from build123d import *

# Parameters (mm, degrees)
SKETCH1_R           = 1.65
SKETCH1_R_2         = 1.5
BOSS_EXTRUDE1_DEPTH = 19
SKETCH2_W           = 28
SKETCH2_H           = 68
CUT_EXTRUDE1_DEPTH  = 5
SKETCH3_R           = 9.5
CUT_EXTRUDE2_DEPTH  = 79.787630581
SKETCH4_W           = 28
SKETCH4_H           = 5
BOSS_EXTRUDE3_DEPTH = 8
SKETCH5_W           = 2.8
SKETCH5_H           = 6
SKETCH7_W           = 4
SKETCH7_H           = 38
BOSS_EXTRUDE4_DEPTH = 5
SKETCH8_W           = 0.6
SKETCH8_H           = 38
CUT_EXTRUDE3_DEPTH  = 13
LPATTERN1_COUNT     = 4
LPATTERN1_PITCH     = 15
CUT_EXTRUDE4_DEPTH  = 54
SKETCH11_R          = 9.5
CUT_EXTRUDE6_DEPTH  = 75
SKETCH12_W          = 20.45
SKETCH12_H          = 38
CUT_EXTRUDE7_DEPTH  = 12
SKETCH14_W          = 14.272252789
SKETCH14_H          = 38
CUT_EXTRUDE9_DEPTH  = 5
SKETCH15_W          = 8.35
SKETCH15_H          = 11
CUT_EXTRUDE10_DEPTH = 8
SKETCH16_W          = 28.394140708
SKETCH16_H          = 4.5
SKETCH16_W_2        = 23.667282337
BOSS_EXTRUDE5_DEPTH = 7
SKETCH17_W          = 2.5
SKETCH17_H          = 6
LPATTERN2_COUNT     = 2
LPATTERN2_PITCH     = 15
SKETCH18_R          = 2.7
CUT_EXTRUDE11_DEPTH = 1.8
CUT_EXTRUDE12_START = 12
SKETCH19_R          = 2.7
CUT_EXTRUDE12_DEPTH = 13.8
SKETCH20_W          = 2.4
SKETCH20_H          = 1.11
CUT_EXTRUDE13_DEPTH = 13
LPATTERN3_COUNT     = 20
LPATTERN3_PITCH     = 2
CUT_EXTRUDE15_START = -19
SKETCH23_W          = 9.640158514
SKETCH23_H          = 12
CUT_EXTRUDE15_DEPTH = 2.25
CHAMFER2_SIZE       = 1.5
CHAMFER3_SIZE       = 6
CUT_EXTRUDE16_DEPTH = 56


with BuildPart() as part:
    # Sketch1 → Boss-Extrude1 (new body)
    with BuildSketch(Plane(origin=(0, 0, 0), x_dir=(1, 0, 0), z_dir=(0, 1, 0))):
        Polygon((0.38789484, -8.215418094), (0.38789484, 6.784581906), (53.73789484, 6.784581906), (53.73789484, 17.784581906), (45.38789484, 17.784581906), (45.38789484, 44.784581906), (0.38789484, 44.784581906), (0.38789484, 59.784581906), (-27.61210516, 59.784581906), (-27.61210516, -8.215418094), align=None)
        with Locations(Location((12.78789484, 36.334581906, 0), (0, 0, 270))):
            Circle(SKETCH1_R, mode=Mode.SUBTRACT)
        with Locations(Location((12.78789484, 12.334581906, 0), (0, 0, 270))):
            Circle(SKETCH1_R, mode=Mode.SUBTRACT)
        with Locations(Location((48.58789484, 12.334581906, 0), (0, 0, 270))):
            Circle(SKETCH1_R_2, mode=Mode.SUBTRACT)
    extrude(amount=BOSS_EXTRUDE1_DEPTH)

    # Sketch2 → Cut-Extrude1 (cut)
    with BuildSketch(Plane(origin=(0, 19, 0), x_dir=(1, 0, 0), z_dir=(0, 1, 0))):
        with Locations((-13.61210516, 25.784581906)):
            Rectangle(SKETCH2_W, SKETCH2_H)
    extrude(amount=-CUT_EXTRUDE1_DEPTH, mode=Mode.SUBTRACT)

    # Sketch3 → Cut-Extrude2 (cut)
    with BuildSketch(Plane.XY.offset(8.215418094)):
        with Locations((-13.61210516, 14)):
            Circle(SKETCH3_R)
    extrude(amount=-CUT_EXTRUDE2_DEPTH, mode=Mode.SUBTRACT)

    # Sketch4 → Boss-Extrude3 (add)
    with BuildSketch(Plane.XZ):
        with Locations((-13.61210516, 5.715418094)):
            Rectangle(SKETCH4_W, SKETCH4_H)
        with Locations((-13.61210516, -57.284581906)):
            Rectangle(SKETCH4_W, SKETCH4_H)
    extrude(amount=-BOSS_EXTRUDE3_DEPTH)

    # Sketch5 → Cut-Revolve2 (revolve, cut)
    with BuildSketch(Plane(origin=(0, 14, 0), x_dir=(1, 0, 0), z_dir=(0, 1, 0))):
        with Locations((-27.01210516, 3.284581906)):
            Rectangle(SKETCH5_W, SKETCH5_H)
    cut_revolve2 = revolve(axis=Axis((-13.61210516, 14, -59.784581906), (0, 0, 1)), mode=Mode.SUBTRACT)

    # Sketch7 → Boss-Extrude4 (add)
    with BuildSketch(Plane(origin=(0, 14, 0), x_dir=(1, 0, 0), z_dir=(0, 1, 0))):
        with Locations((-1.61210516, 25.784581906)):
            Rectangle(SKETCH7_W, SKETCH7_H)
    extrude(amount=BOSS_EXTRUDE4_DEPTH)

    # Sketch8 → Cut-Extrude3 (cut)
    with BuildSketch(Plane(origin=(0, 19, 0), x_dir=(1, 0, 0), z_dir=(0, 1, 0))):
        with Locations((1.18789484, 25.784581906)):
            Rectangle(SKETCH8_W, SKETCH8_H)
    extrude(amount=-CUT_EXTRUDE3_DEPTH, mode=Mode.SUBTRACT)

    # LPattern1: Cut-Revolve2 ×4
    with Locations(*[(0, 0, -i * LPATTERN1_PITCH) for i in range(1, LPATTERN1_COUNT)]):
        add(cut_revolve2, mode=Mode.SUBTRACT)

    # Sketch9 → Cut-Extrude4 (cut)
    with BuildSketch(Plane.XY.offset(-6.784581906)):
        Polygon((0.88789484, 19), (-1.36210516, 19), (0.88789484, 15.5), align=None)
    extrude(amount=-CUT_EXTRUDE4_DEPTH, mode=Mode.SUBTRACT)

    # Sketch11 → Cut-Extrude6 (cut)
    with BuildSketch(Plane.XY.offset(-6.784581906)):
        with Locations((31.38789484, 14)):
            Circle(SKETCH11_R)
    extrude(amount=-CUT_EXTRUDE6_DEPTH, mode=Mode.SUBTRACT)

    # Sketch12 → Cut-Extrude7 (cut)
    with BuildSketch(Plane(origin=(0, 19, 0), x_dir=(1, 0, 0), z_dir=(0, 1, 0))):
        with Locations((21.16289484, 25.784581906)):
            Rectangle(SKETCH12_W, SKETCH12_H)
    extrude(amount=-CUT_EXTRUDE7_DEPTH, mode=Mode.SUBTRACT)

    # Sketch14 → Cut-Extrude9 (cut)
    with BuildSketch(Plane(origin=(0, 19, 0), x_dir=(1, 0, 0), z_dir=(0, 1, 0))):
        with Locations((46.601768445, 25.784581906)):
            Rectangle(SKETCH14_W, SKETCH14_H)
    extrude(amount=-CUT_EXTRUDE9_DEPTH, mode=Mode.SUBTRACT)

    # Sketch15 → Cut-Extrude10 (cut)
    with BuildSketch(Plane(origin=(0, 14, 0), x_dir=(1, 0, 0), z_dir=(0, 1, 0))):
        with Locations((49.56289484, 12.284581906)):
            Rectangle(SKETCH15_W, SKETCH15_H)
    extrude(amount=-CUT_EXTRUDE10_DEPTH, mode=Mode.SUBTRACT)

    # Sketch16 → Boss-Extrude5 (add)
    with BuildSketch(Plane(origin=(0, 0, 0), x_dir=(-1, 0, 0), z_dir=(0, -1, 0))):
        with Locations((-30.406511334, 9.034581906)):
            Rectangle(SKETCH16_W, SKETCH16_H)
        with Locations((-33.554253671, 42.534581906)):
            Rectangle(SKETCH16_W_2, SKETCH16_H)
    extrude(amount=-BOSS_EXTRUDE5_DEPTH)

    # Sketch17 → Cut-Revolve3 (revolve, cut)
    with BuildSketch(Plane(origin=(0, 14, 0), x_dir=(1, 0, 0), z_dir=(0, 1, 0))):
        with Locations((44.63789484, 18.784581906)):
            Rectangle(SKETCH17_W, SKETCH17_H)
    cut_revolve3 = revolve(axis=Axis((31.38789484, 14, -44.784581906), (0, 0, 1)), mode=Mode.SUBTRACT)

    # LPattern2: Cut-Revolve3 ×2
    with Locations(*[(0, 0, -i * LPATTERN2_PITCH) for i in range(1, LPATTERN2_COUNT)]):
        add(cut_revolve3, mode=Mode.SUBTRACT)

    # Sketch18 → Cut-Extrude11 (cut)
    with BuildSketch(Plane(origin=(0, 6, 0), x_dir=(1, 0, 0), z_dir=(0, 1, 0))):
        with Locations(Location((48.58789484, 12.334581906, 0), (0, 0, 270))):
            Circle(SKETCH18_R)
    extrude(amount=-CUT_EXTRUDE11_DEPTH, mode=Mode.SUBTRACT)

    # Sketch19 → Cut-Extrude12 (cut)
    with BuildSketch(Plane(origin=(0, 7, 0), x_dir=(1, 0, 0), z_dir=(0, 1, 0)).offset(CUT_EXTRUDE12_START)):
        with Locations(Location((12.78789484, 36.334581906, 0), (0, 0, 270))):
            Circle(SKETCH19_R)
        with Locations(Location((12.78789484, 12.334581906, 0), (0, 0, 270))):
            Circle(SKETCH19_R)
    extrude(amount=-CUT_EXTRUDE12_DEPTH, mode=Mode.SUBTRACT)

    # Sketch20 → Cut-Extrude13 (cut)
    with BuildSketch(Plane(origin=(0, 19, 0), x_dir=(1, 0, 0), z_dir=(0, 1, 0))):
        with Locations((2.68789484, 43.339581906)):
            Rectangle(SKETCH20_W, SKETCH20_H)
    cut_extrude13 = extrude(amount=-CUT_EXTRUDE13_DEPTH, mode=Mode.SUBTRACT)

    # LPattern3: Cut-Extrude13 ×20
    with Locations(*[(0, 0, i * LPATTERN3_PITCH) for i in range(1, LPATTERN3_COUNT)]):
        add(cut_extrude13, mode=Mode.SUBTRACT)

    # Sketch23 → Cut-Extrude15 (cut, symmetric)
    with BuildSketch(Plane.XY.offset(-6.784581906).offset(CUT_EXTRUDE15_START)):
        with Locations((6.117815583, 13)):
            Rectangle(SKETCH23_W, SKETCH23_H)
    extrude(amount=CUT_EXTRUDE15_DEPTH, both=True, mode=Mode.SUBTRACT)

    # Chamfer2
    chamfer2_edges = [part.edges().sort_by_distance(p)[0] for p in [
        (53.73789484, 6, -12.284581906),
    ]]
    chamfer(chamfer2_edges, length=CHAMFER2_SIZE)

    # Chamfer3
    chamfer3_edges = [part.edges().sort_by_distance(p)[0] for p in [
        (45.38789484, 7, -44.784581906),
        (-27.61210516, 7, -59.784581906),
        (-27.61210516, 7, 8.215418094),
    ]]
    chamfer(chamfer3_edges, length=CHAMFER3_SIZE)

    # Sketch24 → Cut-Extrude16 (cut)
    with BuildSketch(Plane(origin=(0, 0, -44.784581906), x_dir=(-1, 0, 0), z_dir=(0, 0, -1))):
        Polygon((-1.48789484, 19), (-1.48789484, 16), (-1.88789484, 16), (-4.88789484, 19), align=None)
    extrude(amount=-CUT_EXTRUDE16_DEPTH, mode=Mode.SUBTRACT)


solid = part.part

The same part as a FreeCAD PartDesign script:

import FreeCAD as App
import Part
import Sketcher

V = App.Vector
Q = App.Units.Quantity


def edges_at(feature, points):
    """Names of the edges that pass closest to the given points."""
    edges = feature.Shape.Edges
    near = lambda p: min(range(len(edges)), key=lambda i: edges[i].distToShape(Part.Vertex(*p))[0])
    return sorted({f"Edge{near(p) + 1}" for p in points})

doc = App.newDocument("Part")
body = doc.addObject("PartDesign::Body", "Body")

# Sketch on XZ plane
sketch1 = body.newObject("Sketcher::SketchObject", "Sketch")
sketch1.AttachmentSupport = (doc.getObject("XZ_Plane"), [""])
sketch1.MapMode = "FlatFace"
sketch1.addGeometry(Part.LineSegment(V(0.4, 8.2, 0), V(0.4, -6.8, 0)), False)
sketch1.addGeometry(Part.LineSegment(V(0.4, -6.8, 0), V(53.7, -6.8, 0)), False)
sketch1.addGeometry(Part.LineSegment(V(53.7, -6.8, 0), V(53.7, -17.8, 0)), False)
sketch1.addGeometry(Part.LineSegment(V(53.7, -17.8, 0), V(45.4, -17.8, 0)), False)
sketch1.addGeometry(Part.LineSegment(V(45.4, -17.8, 0), V(45.4, -44.8, 0)), False)
sketch1.addGeometry(Part.LineSegment(V(45.4, -44.8, 0), V(0.4, -44.8, 0)), False)
sketch1.addGeometry(Part.LineSegment(V(0.4, -44.8, 0), V(0.4, -59.8, 0)), False)
sketch1.addGeometry(Part.LineSegment(V(0.4, -59.8, 0), V(-27.6, -59.8, 0)), False)
sketch1.addGeometry(Part.LineSegment(V(-27.6, -59.8, 0), V(-27.6, 8.2, 0)), False)
sketch1.addGeometry(Part.LineSegment(V(-27.6, 8.2, 0), V(0.4, 8.2, 0)), False)
sketch1.addGeometry(Part.Circle(V(12.8, -12.3, 0), V(0, 0, 1), 1.6), False)
sketch1.addGeometry(Part.Circle(V(48.6, -12.3, 0), V(0, 0, 1), 1.5), False)
sketch1.addGeometry(Part.Circle(V(12.8, -36.3, 0), V(0, 0, 1), 1.6), False)
sketch1.addConstraint(Sketcher.Constraint("Coincident", 0, 2, 1, 1))
sketch1.addConstraint(Sketcher.Constraint("Coincident", 1, 2, 2, 1))
sketch1.addConstraint(Sketcher.Constraint("Coincident", 2, 2, 3, 1))
sketch1.addConstraint(Sketcher.Constraint("Coincident", 3, 2, 4, 1))
sketch1.addConstraint(Sketcher.Constraint("Coincident", 4, 2, 5, 1))
sketch1.addConstraint(Sketcher.Constraint("Coincident", 5, 2, 6, 1))
sketch1.addConstraint(Sketcher.Constraint("Coincident", 6, 2, 7, 1))
sketch1.addConstraint(Sketcher.Constraint("Coincident", 7, 2, 8, 1))
sketch1.addConstraint(Sketcher.Constraint("Coincident", 8, 2, 9, 1))
sketch1.addConstraint(Sketcher.Constraint("Coincident", 9, 2, 0, 1))
sketch1.addConstraint(Sketcher.Constraint("Vertical", 0))
sketch1.addConstraint(Sketcher.Constraint("Horizontal", 1))
sketch1.addConstraint(Sketcher.Constraint("Vertical", 2))
sketch1.addConstraint(Sketcher.Constraint("Horizontal", 3))
sketch1.addConstraint(Sketcher.Constraint("Vertical", 4))
sketch1.addConstraint(Sketcher.Constraint("Horizontal", 5))
sketch1.addConstraint(Sketcher.Constraint("Vertical", 6))
sketch1.addConstraint(Sketcher.Constraint("Horizontal", 7))
sketch1.addConstraint(Sketcher.Constraint("Vertical", 8))
sketch1.addConstraint(Sketcher.Constraint("Horizontal", 9))
sketch1.addConstraint(Sketcher.Constraint("Equal", 10, 12))
sketch1.addConstraint(Sketcher.Constraint("Horizontal", 10, 3, 11, 3))
sketch1.addConstraint(Sketcher.Constraint("Vertical", 10, 3, 12, 3))
sketch1.addConstraint(Sketcher.Constraint("Vertical", 0, 2, 5, 2))
sketch1.addConstraint(Sketcher.Constraint("Equal", 0, 6))
sketch1.addConstraint(Sketcher.Constraint("Diameter", 11, 3.0))
sketch1.addConstraint(Sketcher.Constraint("Diameter", 10, 3.3))
sketch1.addConstraint(Sketcher.Constraint("DistanceX", 5, 2, 5, 1, 45.0))
sketch1.addConstraint(Sketcher.Constraint("DistanceX", 7, 2, 7, 1, 28.0))
sketch1.addConstraint(Sketcher.Constraint("DistanceY", 0, 2, 0, 1, 15.0))
sketch1.addConstraint(Sketcher.Constraint("DistanceY", 2, 2, 2, 1, 11.0))
sketch1.addConstraint(Sketcher.Constraint("DistanceY", 4, 2, 4, 1, 27.0))
sketch1.addConstraint(Sketcher.Constraint("DistanceY", 12, 3, 10, 3, 24.0))
sketch1.addConstraint(Sketcher.Constraint("DistanceX", 1, 1, 1, 2, 53.35))
sketch1.addConstraint(Sketcher.Constraint("DistanceX", 10, 3, 11, 3, 35.8))
sketch1.addConstraint(Sketcher.Constraint("DistanceX", 0, 2, 10, 3, 12.4))
sketch1.addConstraint(Sketcher.Constraint("DistanceY", 10, 3, 0, 2, 5.55))
sketch1.addConstraint(Sketcher.Constraint("DistanceY", 10, 3, -1, 1, 12.334582))
sketch1.addConstraint(Sketcher.Constraint("DistanceX", -1, 1, 10, 3, 12.787895))
pad1 = body.newObject("PartDesign::Pad", "Pad")
pad1.Profile = sketch1
pad1.Length = 19
pad1.Reversed = True

# Sketch on XZ plane
sketch2 = body.newObject("Sketcher::SketchObject", "Sketch001")
sketch2.AttachmentSupport = (doc.getObject("XZ_Plane"), [""])
sketch2.MapMode = "FlatFace"
sketch2.AttachmentOffset = App.Placement(V(0, 0, -19), App.Rotation())
sketch2.addGeometry(Part.LineSegment(V(-28, -60, 0), V(-28, 8, 0)), False)
sketch2.addGeometry(Part.LineSegment(V(-28, 8, 0), V(0, 8, 0)), False)
sketch2.addGeometry(Part.LineSegment(V(0, 8, 0), V(0, -60, 0)), False)
sketch2.addGeometry(Part.LineSegment(V(0, -60, 0), V(-28, -60, 0)), False)
sketch2.addConstraint(Sketcher.Constraint("Coincident", 0, 2, 1, 1))
sketch2.addConstraint(Sketcher.Constraint("Coincident", 1, 2, 2, 1))
sketch2.addConstraint(Sketcher.Constraint("Coincident", 2, 2, 3, 1))
sketch2.addConstraint(Sketcher.Constraint("Coincident", 3, 2, 0, 1))
sketch2.addConstraint(Sketcher.Constraint("Vertical", 0))
sketch2.addConstraint(Sketcher.Constraint("Horizontal", 1))
sketch2.addConstraint(Sketcher.Constraint("Vertical", 2))
sketch2.addConstraint(Sketcher.Constraint("Horizontal", 3))
sketch2.addConstraint(Sketcher.Constraint("DistanceX", 1, 1, 1, 2, 28.0))
sketch2.addConstraint(Sketcher.Constraint("DistanceY", 0, 1, 0, 2, 68.0))
sketch2.addConstraint(Sketcher.Constraint("DistanceY", -1, 1, 0, 2, 8.215418))
sketch2.addConstraint(Sketcher.Constraint("DistanceX", 0, 2, -1, 1, 27.612105))
pocket1 = body.newObject("PartDesign::Pocket", "Pocket")
pocket1.Profile = sketch2
pocket1.Length = 5
pocket1.Reversed = True

# Sketch on XY plane
sketch3 = body.newObject("Sketcher::SketchObject", "Sketch002")
sketch3.AttachmentSupport = (doc.getObject("XY_Plane"), [""])
sketch3.MapMode = "FlatFace"
sketch3.AttachmentOffset = App.Placement(V(0, 0, 8.215418), App.Rotation())
sketch3.addGeometry(Part.Circle(V(-14, 14, 0), V(0, 0, 1), 10), False)
sketch3.addConstraint(Sketcher.Constraint("Diameter", 0, 19.0))
sketch3.addConstraint(Sketcher.Constraint("DistanceY", -1, 1, 0, 3, 14.0))
sketch3.addConstraint(Sketcher.Constraint("DistanceX", 0, 3, -1, 1, 13.612105))
pocket2 = body.newObject("PartDesign::Pocket", "Pocket001")
pocket2.Profile = sketch3
pocket2.Length = 79.787631

# Sketch on XZ plane
sketch4 = body.newObject("Sketcher::SketchObject", "Sketch003")
sketch4.AttachmentSupport = (doc.getObject("XZ_Plane"), [""])
sketch4.MapMode = "FlatFace"
sketch4.addGeometry(Part.LineSegment(V(-28, 8, 0), V(-28, 3, 0)), False)
sketch4.addGeometry(Part.LineSegment(V(-28, 3, 0), V(0, 3, 0)), False)
sketch4.addGeometry(Part.LineSegment(V(0, 3, 0), V(0, 8, 0)), False)
sketch4.addGeometry(Part.LineSegment(V(0, 8, 0), V(-28, 8, 0)), False)
sketch4.addGeometry(Part.LineSegment(V(-28, -55, 0), V(-28, -60, 0)), False)
sketch4.addGeometry(Part.LineSegment(V(-28, -60, 0), V(0, -60, 0)), False)
sketch4.addGeometry(Part.LineSegment(V(0, -60, 0), V(0, -55, 0)), False)
sketch4.addGeometry(Part.LineSegment(V(0, -55, 0), V(-28, -55, 0)), False)
sketch4.addConstraint(Sketcher.Constraint("Coincident", 0, 2, 1, 1))
sketch4.addConstraint(Sketcher.Constraint("Coincident", 1, 2, 2, 1))
sketch4.addConstraint(Sketcher.Constraint("Coincident", 2, 2, 3, 1))
sketch4.addConstraint(Sketcher.Constraint("Coincident", 3, 2, 0, 1))
sketch4.addConstraint(Sketcher.Constraint("Coincident", 4, 2, 5, 1))
sketch4.addConstraint(Sketcher.Constraint("Coincident", 5, 2, 6, 1))
sketch4.addConstraint(Sketcher.Constraint("Coincident", 6, 2, 7, 1))
sketch4.addConstraint(Sketcher.Constraint("Coincident", 7, 2, 4, 1))
sketch4.addConstraint(Sketcher.Constraint("Vertical", 0))
sketch4.addConstraint(Sketcher.Constraint("Horizontal", 1))
sketch4.addConstraint(Sketcher.Constraint("Vertical", 2))
sketch4.addConstraint(Sketcher.Constraint("Horizontal", 3))
sketch4.addConstraint(Sketcher.Constraint("Vertical", 4))
sketch4.addConstraint(Sketcher.Constraint("Horizontal", 5))
sketch4.addConstraint(Sketcher.Constraint("Vertical", 6))
sketch4.addConstraint(Sketcher.Constraint("Horizontal", 7))
sketch4.addConstraint(Sketcher.Constraint("Vertical", 3, 2, 4, 2))
sketch4.addConstraint(Sketcher.Constraint("Vertical", 2, 2, 5, 2))
sketch4.addConstraint(Sketcher.Constraint("Equal", 2, 4))
sketch4.addConstraint(Sketcher.Constraint("DistanceX", 1, 1, 1, 2, 28.0))
sketch4.addConstraint(Sketcher.Constraint("DistanceY", 0, 2, 0, 1, 5.0))
sketch4.addConstraint(Sketcher.Constraint("DistanceY", 4, 2, 0, 2, 63.0))
sketch4.addConstraint(Sketcher.Constraint("DistanceY", -1, 1, 0, 2, 3.215418))
sketch4.addConstraint(Sketcher.Constraint("DistanceX", 0, 2, -1, 1, 27.612105))
pad2 = body.newObject("PartDesign::Pad", "Pad001")
pad2.Profile = sketch4
pad2.Length = 8
pad2.Reversed = True

# Sketch on XZ plane
sketch5 = body.newObject("Sketcher::SketchObject", "Sketch004")
sketch5.AttachmentSupport = (doc.getObject("XZ_Plane"), [""])
sketch5.MapMode = "FlatFace"
sketch5.AttachmentOffset = App.Placement(V(0, 0, -14), App.Rotation())
sketch5.addGeometry(Part.LineSegment(V(-28.4, -6.3, 0), V(-28.4, -0.3, 0)), False)
sketch5.addGeometry(Part.LineSegment(V(-28.4, -0.3, 0), V(-25.6, -0.3, 0)), False)
sketch5.addGeometry(Part.LineSegment(V(-25.6, -0.3, 0), V(-25.6, -6.3, 0)), False)
sketch5.addGeometry(Part.LineSegment(V(-25.6, -6.3, 0), V(-28.4, -6.3, 0)), False)
sketch5.addGeometry(Part.LineSegment(V(-13.6, -6.3, 0), V(-13.6, -0.3, 0)), True)  # axis
sketch5.addConstraint(Sketcher.Constraint("Coincident", 0, 2, 1, 1))
sketch5.addConstraint(Sketcher.Constraint("Coincident", 1, 2, 2, 1))
sketch5.addConstraint(Sketcher.Constraint("Coincident", 2, 2, 3, 1))
sketch5.addConstraint(Sketcher.Constraint("Coincident", 3, 2, 0, 1))
sketch5.addConstraint(Sketcher.Constraint("Vertical", 0))
sketch5.addConstraint(Sketcher.Constraint("Horizontal", 1))
sketch5.addConstraint(Sketcher.Constraint("Vertical", 2))
sketch5.addConstraint(Sketcher.Constraint("Horizontal", 3))
sketch5.addConstraint(Sketcher.Constraint("Vertical", 4))
sketch5.addConstraint(Sketcher.Constraint("Horizontal", 3, 2, 4, 1))
sketch5.addConstraint(Sketcher.Constraint("Horizontal", 1, 2, 4, 2))
sketch5.addConstraint(Sketcher.Constraint("DistanceY", 0, 1, 0, 2, 6.0))
sketch5.addConstraint(Sketcher.Constraint("DistanceX", 1, 1, 1, 2, 2.8))
sketch5.addConstraint(Sketcher.Constraint("DistanceX", 2, 2, 4, 1, 12.0))
sketch5.addConstraint(Sketcher.Constraint("DistanceY", 0, 2, -1, 1, 0.284582))
sketch5.addConstraint(Sketcher.Constraint("DistanceX", 0, 2, -1, 1, 28.412105))
groove = body.newObject("PartDesign::Groove", "Groove")
groove.Profile = sketch5
groove.ReferenceAxis = (sketch5, ["Axis0"])
groove.Angle = 360

# Sketch on XZ plane
sketch6 = body.newObject("Sketcher::SketchObject", "Sketch005")
sketch6.AttachmentSupport = (doc.getObject("XZ_Plane"), [""])
sketch6.MapMode = "FlatFace"
sketch6.AttachmentOffset = App.Placement(V(0, 0, -14), App.Rotation())
sketch6.addGeometry(Part.LineSegment(V(-3.6, -44.8, 0), V(-3.6, -6.8, 0)), False)
sketch6.addGeometry(Part.LineSegment(V(-3.6, -6.8, 0), V(0.4, -6.8, 0)), False)
sketch6.addGeometry(Part.LineSegment(V(0.4, -6.8, 0), V(0.4, -44.8, 0)), False)
sketch6.addGeometry(Part.LineSegment(V(0.4, -44.8, 0), V(-3.6, -44.8, 0)), False)
sketch6.addConstraint(Sketcher.Constraint("Coincident", 0, 2, 1, 1))
sketch6.addConstraint(Sketcher.Constraint("Coincident", 1, 2, 2, 1))
sketch6.addConstraint(Sketcher.Constraint("Coincident", 2, 2, 3, 1))
sketch6.addConstraint(Sketcher.Constraint("Coincident", 3, 2, 0, 1))
sketch6.addConstraint(Sketcher.Constraint("Vertical", 0))
sketch6.addConstraint(Sketcher.Constraint("Horizontal", 1))
sketch6.addConstraint(Sketcher.Constraint("Vertical", 2))
sketch6.addConstraint(Sketcher.Constraint("Horizontal", 3))
sketch6.addConstraint(Sketcher.Constraint("DistanceX", 1, 1, 1, 2, 4.0))
sketch6.addConstraint(Sketcher.Constraint("DistanceY", 0, 1, 0, 2, 38.0))
sketch6.addConstraint(Sketcher.Constraint("DistanceY", 0, 2, -1, 1, 6.784582))
sketch6.addConstraint(Sketcher.Constraint("DistanceX", 0, 2, -1, 1, 3.612105))
pad3 = body.newObject("PartDesign::Pad", "Pad002")
pad3.Profile = sketch6
pad3.Length = 5
pad3.Reversed = True

# Sketch on XZ plane
sketch7 = body.newObject("Sketcher::SketchObject", "Sketch006")
sketch7.AttachmentSupport = (doc.getObject("XZ_Plane"), [""])
sketch7.MapMode = "FlatFace"
sketch7.AttachmentOffset = App.Placement(V(0, 0, -19), App.Rotation())
sketch7.addGeometry(Part.LineSegment(V(0.9, -44.8, 0), V(0.9, -6.8, 0)), False)
sketch7.addGeometry(Part.LineSegment(V(0.9, -6.8, 0), V(1.5, -6.8, 0)), False)
sketch7.addGeometry(Part.LineSegment(V(1.5, -6.8, 0), V(1.5, -44.8, 0)), False)
sketch7.addGeometry(Part.LineSegment(V(1.5, -44.8, 0), V(0.9, -44.8, 0)), False)
sketch7.addConstraint(Sketcher.Constraint("Coincident", 0, 2, 1, 1))
sketch7.addConstraint(Sketcher.Constraint("Coincident", 1, 2, 2, 1))
sketch7.addConstraint(Sketcher.Constraint("Coincident", 2, 2, 3, 1))
sketch7.addConstraint(Sketcher.Constraint("Coincident", 3, 2, 0, 1))
sketch7.addConstraint(Sketcher.Constraint("Vertical", 0))
sketch7.addConstraint(Sketcher.Constraint("Horizontal", 1))
sketch7.addConstraint(Sketcher.Constraint("Vertical", 2))
sketch7.addConstraint(Sketcher.Constraint("Horizontal", 3))
sketch7.addConstraint(Sketcher.Constraint("DistanceY", 0, 1, 0, 2, 38.0))
sketch7.addConstraint(Sketcher.Constraint("DistanceX", 1, 1, 1, 2, 0.6))
sketch7.addConstraint(Sketcher.Constraint("DistanceY", 0, 2, -1, 1, 6.784582))
sketch7.addConstraint(Sketcher.Constraint("DistanceX", -1, 1, 0, 2, 0.887895))
pocket3 = body.newObject("PartDesign::Pocket", "Pocket002")
pocket3.Profile = sketch7
pocket3.Length = 13
pocket3.Reversed = True
doc.recompute()

linearpattern = body.newObject("PartDesign::LinearPattern", "LinearPattern")
linearpattern.Originals = [groove]
linearpattern.Direction = (doc.getObject("Z_Axis"), [""])
linearpattern.Mode = "offset"
linearpattern.Offset = 15
linearpattern.Occurrences = 4
linearpattern.Reversed = True
body.Tip = linearpattern

# Sketch on XY plane
sketch8 = body.newObject("Sketcher::SketchObject", "Sketch007")
sketch8.AttachmentSupport = (doc.getObject("XY_Plane"), [""])
sketch8.MapMode = "FlatFace"
sketch8.AttachmentOffset = App.Placement(V(0, 0, -6.784582), App.Rotation())
sketch8.addGeometry(Part.LineSegment(V(0.9, 19, 0), V(-1.4, 19, 0)), False)
sketch8.addGeometry(Part.LineSegment(V(-1.4, 19, 0), V(0.9, 15.5, 0)), False)
sketch8.addGeometry(Part.LineSegment(V(0.9, 15.5, 0), V(0.9, 19, 0)), False)
sketch8.addConstraint(Sketcher.Constraint("Coincident", 0, 2, 1, 1))
sketch8.addConstraint(Sketcher.Constraint("Coincident", 1, 2, 2, 1))
sketch8.addConstraint(Sketcher.Constraint("Coincident", 2, 2, 0, 1))
sketch8.addConstraint(Sketcher.Constraint("Horizontal", 0))
sketch8.addConstraint(Sketcher.Constraint("Vertical", 2))
sketch8.addConstraint(Sketcher.Constraint("DistanceY", 2, 1, 2, 2, 3.5))
sketch8.addConstraint(Sketcher.Constraint("DistanceY", -1, 1, 0, 2, 19.0))
sketch8.addConstraint(Sketcher.Constraint("DistanceX", 0, 2, 0, 1, 2.25))
sketch8.addConstraint(Sketcher.Constraint("DistanceX", 0, 2, -1, 1, 1.362105))
pocket4 = body.newObject("PartDesign::Pocket", "Pocket003")
pocket4.Profile = sketch8
pocket4.Length = 54

# Sketch on XY plane
sketch9 = body.newObject("Sketcher::SketchObject", "Sketch008")
sketch9.AttachmentSupport = (doc.getObject("XY_Plane"), [""])
sketch9.MapMode = "FlatFace"
sketch9.AttachmentOffset = App.Placement(V(0, 0, -6.784582), App.Rotation())
sketch9.addGeometry(Part.Circle(V(31, 14, 0), V(0, 0, 1), 10), False)
sketch9.addConstraint(Sketcher.Constraint("Diameter", 0, 19.0))
sketch9.addConstraint(Sketcher.Constraint("DistanceY", -1, 1, 0, 3, 14.0))
sketch9.addConstraint(Sketcher.Constraint("DistanceX", -1, 1, 0, 3, 31.387895))
pocket5 = body.newObject("PartDesign::Pocket", "Pocket004")
pocket5.Profile = sketch9
pocket5.Length = 75

# Sketch on XZ plane
sketch10 = body.newObject("Sketcher::SketchObject", "Sketch009")
sketch10.AttachmentSupport = (doc.getObject("XZ_Plane"), [""])
sketch10.MapMode = "FlatFace"
sketch10.AttachmentOffset = App.Placement(V(0, 0, -19), App.Rotation())
sketch10.addGeometry(Part.LineSegment(V(11, -45, 0), V(11, -7, 0)), False)
sketch10.addGeometry(Part.LineSegment(V(11, -7, 0), V(31, -7, 0)), False)
sketch10.addGeometry(Part.LineSegment(V(31, -7, 0), V(31, -45, 0)), False)
sketch10.addGeometry(Part.LineSegment(V(31, -45, 0), V(11, -45, 0)), False)
sketch10.addConstraint(Sketcher.Constraint("Coincident", 0, 2, 1, 1))
sketch10.addConstraint(Sketcher.Constraint("Coincident", 1, 2, 2, 1))
sketch10.addConstraint(Sketcher.Constraint("Coincident", 2, 2, 3, 1))
sketch10.addConstraint(Sketcher.Constraint("Coincident", 3, 2, 0, 1))
sketch10.addConstraint(Sketcher.Constraint("Vertical", 0))
sketch10.addConstraint(Sketcher.Constraint("Horizontal", 1))
sketch10.addConstraint(Sketcher.Constraint("Vertical", 2))
sketch10.addConstraint(Sketcher.Constraint("Horizontal", 3))
sketch10.addConstraint(Sketcher.Constraint("DistanceY", 0, 1, 0, 2, 38.0))
sketch10.addConstraint(Sketcher.Constraint("DistanceX", 1, 1, 1, 2, 20.45))
sketch10.addConstraint(Sketcher.Constraint("DistanceY", 0, 2, -1, 1, 6.784582))
sketch10.addConstraint(Sketcher.Constraint("DistanceX", -1, 1, 0, 2, 10.937895))
pocket6 = body.newObject("PartDesign::Pocket", "Pocket005")
pocket6.Profile = sketch10
pocket6.Length = 12
pocket6.Reversed = True

# Sketch on XZ plane
sketch11 = body.newObject("Sketcher::SketchObject", "Sketch010")
sketch11.AttachmentSupport = (doc.getObject("XZ_Plane"), [""])
sketch11.MapMode = "FlatFace"
sketch11.AttachmentOffset = App.Placement(V(0, 0, -19), App.Rotation())
sketch11.addGeometry(Part.LineSegment(V(39, -45, 0), V(39, -7, 0)), False)
sketch11.addGeometry(Part.LineSegment(V(39, -7, 0), V(54, -7, 0)), False)
sketch11.addGeometry(Part.LineSegment(V(54, -7, 0), V(54, -45, 0)), False)
sketch11.addGeometry(Part.LineSegment(V(54, -45, 0), V(39, -45, 0)), False)
sketch11.addConstraint(Sketcher.Constraint("Coincident", 0, 2, 1, 1))
sketch11.addConstraint(Sketcher.Constraint("Coincident", 1, 2, 2, 1))
sketch11.addConstraint(Sketcher.Constraint("Coincident", 2, 2, 3, 1))
sketch11.addConstraint(Sketcher.Constraint("Coincident", 3, 2, 0, 1))
sketch11.addConstraint(Sketcher.Constraint("Vertical", 0))
sketch11.addConstraint(Sketcher.Constraint("Horizontal", 1))
sketch11.addConstraint(Sketcher.Constraint("Vertical", 2))
sketch11.addConstraint(Sketcher.Constraint("Horizontal", 3))
sketch11.addConstraint(Sketcher.Constraint("DistanceY", 0, 1, 0, 2, 38.0))
sketch11.addConstraint(Sketcher.Constraint("DistanceX", 1, 1, 1, 2, 14.272253))
sketch11.addConstraint(Sketcher.Constraint("DistanceY", 0, 2, -1, 1, 6.784582))
sketch11.addConstraint(Sketcher.Constraint("DistanceX", -1, 1, 0, 2, 39.465642))
pocket7 = body.newObject("PartDesign::Pocket", "Pocket006")
pocket7.Profile = sketch11
pocket7.Length = 5
pocket7.Reversed = True

# Sketch on XZ plane
sketch12 = body.newObject("Sketcher::SketchObject", "Sketch011")
sketch12.AttachmentSupport = (doc.getObject("XZ_Plane"), [""])
sketch12.MapMode = "FlatFace"
sketch12.AttachmentOffset = App.Placement(V(0, 0, -14), App.Rotation())
sketch12.addGeometry(Part.LineSegment(V(45, -18, 0), V(45, -7, 0)), False)
sketch12.addGeometry(Part.LineSegment(V(45, -7, 0), V(54, -7, 0)), False)
sketch12.addGeometry(Part.LineSegment(V(54, -7, 0), V(54, -18, 0)), False)
sketch12.addGeometry(Part.LineSegment(V(54, -18, 0), V(45, -18, 0)), False)
sketch12.addConstraint(Sketcher.Constraint("Coincident", 0, 2, 1, 1))
sketch12.addConstraint(Sketcher.Constraint("Coincident", 1, 2, 2, 1))
sketch12.addConstraint(Sketcher.Constraint("Coincident", 2, 2, 3, 1))
sketch12.addConstraint(Sketcher.Constraint("Coincident", 3, 2, 0, 1))
sketch12.addConstraint(Sketcher.Constraint("Vertical", 0))
sketch12.addConstraint(Sketcher.Constraint("Horizontal", 1))
sketch12.addConstraint(Sketcher.Constraint("Vertical", 2))
sketch12.addConstraint(Sketcher.Constraint("Horizontal", 3))
sketch12.addConstraint(Sketcher.Constraint("DistanceY", 0, 1, 0, 2, 11.0))
sketch12.addConstraint(Sketcher.Constraint("DistanceX", 1, 1, 1, 2, 8.35))
sketch12.addConstraint(Sketcher.Constraint("DistanceY", 0, 2, -1, 1, 6.784582))
sketch12.addConstraint(Sketcher.Constraint("DistanceX", -1, 1, 0, 2, 45.387895))
pocket8 = body.newObject("PartDesign::Pocket", "Pocket007")
pocket8.Profile = sketch12
pocket8.Length = 8
pocket8.Reversed = True

# Sketch on XZ plane
sketch13 = body.newObject("Sketcher::SketchObject", "Sketch012")
sketch13.AttachmentSupport = (doc.getObject("XZ_Plane"), [""])
sketch13.MapMode = "FlatFace"
sketch13.addGeometry(Part.LineSegment(V(44.6, -11.3, 0), V(44.6, -6.8, 0)), False)
sketch13.addGeometry(Part.LineSegment(V(44.6, -6.8, 0), V(16.2, -6.8, 0)), False)
sketch13.addGeometry(Part.LineSegment(V(16.2, -6.8, 0), V(16.2, -11.3, 0)), False)
sketch13.addGeometry(Part.LineSegment(V(16.2, -11.3, 0), V(44.6, -11.3, 0)), False)
sketch13.addGeometry(Part.LineSegment(V(45.4, -44.8, 0), V(45.4, -40.3, 0)), False)
sketch13.addGeometry(Part.LineSegment(V(45.4, -40.3, 0), V(21.7, -40.3, 0)), False)
sketch13.addGeometry(Part.LineSegment(V(21.7, -40.3, 0), V(21.7, -44.8, 0)), False)
sketch13.addGeometry(Part.LineSegment(V(21.7, -44.8, 0), V(45.4, -44.8, 0)), False)
sketch13.addConstraint(Sketcher.Constraint("Coincident", 0, 2, 1, 1))
sketch13.addConstraint(Sketcher.Constraint("Coincident", 1, 2, 2, 1))
sketch13.addConstraint(Sketcher.Constraint("Coincident", 2, 2, 3, 1))
sketch13.addConstraint(Sketcher.Constraint("Coincident", 3, 2, 0, 1))
sketch13.addConstraint(Sketcher.Constraint("Coincident", 4, 2, 5, 1))
sketch13.addConstraint(Sketcher.Constraint("Coincident", 5, 2, 6, 1))
sketch13.addConstraint(Sketcher.Constraint("Coincident", 6, 2, 7, 1))
sketch13.addConstraint(Sketcher.Constraint("Coincident", 7, 2, 4, 1))
sketch13.addConstraint(Sketcher.Constraint("Vertical", 0))
sketch13.addConstraint(Sketcher.Constraint("Horizontal", 1))
sketch13.addConstraint(Sketcher.Constraint("Vertical", 2))
sketch13.addConstraint(Sketcher.Constraint("Horizontal", 3))
sketch13.addConstraint(Sketcher.Constraint("Vertical", 4))
sketch13.addConstraint(Sketcher.Constraint("Horizontal", 5))
sketch13.addConstraint(Sketcher.Constraint("Vertical", 6))
sketch13.addConstraint(Sketcher.Constraint("Horizontal", 7))
sketch13.addConstraint(Sketcher.Constraint("Equal", 2, 4))
sketch13.addConstraint(Sketcher.Constraint("DistanceY", 0, 1, 0, 2, 4.5))
sketch13.addConstraint(Sketcher.Constraint("DistanceY", 4, 2, 3, 2, 29.0))
sketch13.addConstraint(Sketcher.Constraint("DistanceX", 1, 2, 1, 1, 28.394141))
sketch13.addConstraint(Sketcher.Constraint("DistanceX", 5, 2, 5, 1, 23.667282))
sketch13.addConstraint(Sketcher.Constraint("DistanceX", -1, 1, 0, 2, 44.603582))
sketch13.addConstraint(Sketcher.Constraint("DistanceY", 0, 2, -1, 1, 6.784582))
sketch13.addConstraint(Sketcher.Constraint("DistanceX", 2, 2, 5, 2, 5.511172))
pad4 = body.newObject("PartDesign::Pad", "Pad003")
pad4.Profile = sketch13
pad4.Length = 7
pad4.Reversed = True

# Sketch on XZ plane
sketch14 = body.newObject("Sketcher::SketchObject", "Sketch013")
sketch14.AttachmentSupport = (doc.getObject("XZ_Plane"), [""])
sketch14.MapMode = "FlatFace"
sketch14.AttachmentOffset = App.Placement(V(0, 0, -14), App.Rotation())
sketch14.addGeometry(Part.LineSegment(V(43.4, -21.8, 0), V(43.4, -15.8, 0)), False)
sketch14.addGeometry(Part.LineSegment(V(43.4, -15.8, 0), V(45.9, -15.8, 0)), False)
sketch14.addGeometry(Part.LineSegment(V(45.9, -15.8, 0), V(45.9, -21.8, 0)), False)
sketch14.addGeometry(Part.LineSegment(V(45.9, -21.8, 0), V(43.4, -21.8, 0)), False)
sketch14.addGeometry(Part.LineSegment(V(31.4, -21.8, 0), V(31.4, -15.8, 0)), True)  # axis
sketch14.addConstraint(Sketcher.Constraint("Coincident", 0, 2, 1, 1))
sketch14.addConstraint(Sketcher.Constraint("Coincident", 1, 2, 2, 1))
sketch14.addConstraint(Sketcher.Constraint("Coincident", 2, 2, 3, 1))
sketch14.addConstraint(Sketcher.Constraint("Coincident", 3, 2, 0, 1))
sketch14.addConstraint(Sketcher.Constraint("Vertical", 0))
sketch14.addConstraint(Sketcher.Constraint("Horizontal", 1))
sketch14.addConstraint(Sketcher.Constraint("Vertical", 2))
sketch14.addConstraint(Sketcher.Constraint("Horizontal", 3))
sketch14.addConstraint(Sketcher.Constraint("Vertical", 4))
sketch14.addConstraint(Sketcher.Constraint("Horizontal", 3, 2, 4, 1))
sketch14.addConstraint(Sketcher.Constraint("Horizontal", 1, 2, 4, 2))
sketch14.addConstraint(Sketcher.Constraint("DistanceY", 0, 1, 0, 2, 6.0))
sketch14.addConstraint(Sketcher.Constraint("DistanceX", 1, 1, 1, 2, 2.5))
sketch14.addConstraint(Sketcher.Constraint("DistanceX", 4, 1, 3, 2, 12.0))
sketch14.addConstraint(Sketcher.Constraint("DistanceY", 0, 2, -1, 1, 15.784582))
sketch14.addConstraint(Sketcher.Constraint("DistanceX", -1, 1, 0, 2, 43.387895))
groove2 = body.newObject("PartDesign::Groove", "Groove001")
groove2.Profile = sketch14
groove2.ReferenceAxis = (sketch14, ["Axis0"])
groove2.Angle = 360
doc.recompute()

linearpattern2 = body.newObject("PartDesign::LinearPattern", "LinearPattern001")
linearpattern2.Originals = [groove2]
linearpattern2.Direction = (doc.getObject("Z_Axis"), [""])
linearpattern2.Mode = "offset"
linearpattern2.Offset = 15
linearpattern2.Occurrences = 2
linearpattern2.Reversed = True
body.Tip = linearpattern2

# Sketch on XZ plane
sketch15 = body.newObject("Sketcher::SketchObject", "Sketch014")
sketch15.AttachmentSupport = (doc.getObject("XZ_Plane"), [""])
sketch15.MapMode = "FlatFace"
sketch15.AttachmentOffset = App.Placement(V(0, 0, -6), App.Rotation())
sketch15.addGeometry(Part.Circle(V(48.6, -12.3, 0), V(0, 0, 1), 2.7), False)
sketch15.addConstraint(Sketcher.Constraint("Diameter", 0, 5.4))
sketch15.addConstraint(Sketcher.Constraint("DistanceY", 0, 3, -1, 1, 12.334582))
sketch15.addConstraint(Sketcher.Constraint("DistanceX", -1, 1, 0, 3, 48.587895))
pocket9 = body.newObject("PartDesign::Pocket", "Pocket008")
pocket9.Profile = sketch15
pocket9.Length = 1.8
pocket9.Reversed = True

# Sketch on XZ plane
sketch16 = body.newObject("Sketcher::SketchObject", "Sketch015")
sketch16.AttachmentSupport = (doc.getObject("XZ_Plane"), [""])
sketch16.MapMode = "FlatFace"
sketch16.AttachmentOffset = App.Placement(V(0, 0, -19), App.Rotation())
sketch16.addGeometry(Part.Circle(V(12.8, -36.3, 0), V(0, 0, 1), 2.7), False)
sketch16.addGeometry(Part.Circle(V(12.8, -12.3, 0), V(0, 0, 1), 2.7), False)
sketch16.addConstraint(Sketcher.Constraint("Equal", 0, 1))
sketch16.addConstraint(Sketcher.Constraint("Vertical", 0, 3, 1, 3))
sketch16.addConstraint(Sketcher.Constraint("Diameter", 0, 5.4))
sketch16.addConstraint(Sketcher.Constraint("DistanceY", 0, 3, 1, 3, 24.0))
sketch16.addConstraint(Sketcher.Constraint("DistanceY", 0, 3, -1, 1, 36.334582))
sketch16.addConstraint(Sketcher.Constraint("DistanceX", -1, 1, 0, 3, 12.787895))
pocket10 = body.newObject("PartDesign::Pocket", "Pocket009")
pocket10.Profile = sketch16
pocket10.Length = 13.8
pocket10.Reversed = True

# Sketch on XZ plane
sketch17 = body.newObject("Sketcher::SketchObject", "Sketch016")
sketch17.AttachmentSupport = (doc.getObject("XZ_Plane"), [""])
sketch17.MapMode = "FlatFace"
sketch17.AttachmentOffset = App.Placement(V(0, 0, -19), App.Rotation())
sketch17.addGeometry(Part.LineSegment(V(1.5, -43.9, 0), V(1.5, -42.8, 0)), False)
sketch17.addGeometry(Part.LineSegment(V(1.5, -42.8, 0), V(3.9, -42.8, 0)), False)
sketch17.addGeometry(Part.LineSegment(V(3.9, -42.8, 0), V(3.9, -43.9, 0)), False)
sketch17.addGeometry(Part.LineSegment(V(3.9, -43.9, 0), V(1.5, -43.9, 0)), False)
sketch17.addConstraint(Sketcher.Constraint("Coincident", 0, 2, 1, 1))
sketch17.addConstraint(Sketcher.Constraint("Coincident", 1, 2, 2, 1))
sketch17.addConstraint(Sketcher.Constraint("Coincident", 2, 2, 3, 1))
sketch17.addConstraint(Sketcher.Constraint("Coincident", 3, 2, 0, 1))
sketch17.addConstraint(Sketcher.Constraint("Vertical", 0))
sketch17.addConstraint(Sketcher.Constraint("Horizontal", 1))
sketch17.addConstraint(Sketcher.Constraint("Vertical", 2))
sketch17.addConstraint(Sketcher.Constraint("Horizontal", 3))
sketch17.addConstraint(Sketcher.Constraint("DistanceX", 1, 1, 1, 2, 2.4))
sketch17.addConstraint(Sketcher.Constraint("DistanceY", 0, 1, 0, 2, 1.11))
sketch17.addConstraint(Sketcher.Constraint("DistanceY", 0, 2, -1, 1, 42.784582))
sketch17.addConstraint(Sketcher.Constraint("DistanceX", -1, 1, 0, 2, 1.487895))
pocket11 = body.newObject("PartDesign::Pocket", "Pocket010")
pocket11.Profile = sketch17
pocket11.Length = 13
pocket11.Reversed = True
doc.recompute()

linearpattern3 = body.newObject("PartDesign::LinearPattern", "LinearPattern002")
linearpattern3.Originals = [pocket11]
linearpattern3.Direction = (doc.getObject("Z_Axis"), [""])
linearpattern3.Mode = "offset"
linearpattern3.Offset = 2
linearpattern3.Occurrences = 20
body.Tip = linearpattern3

# Sketch on XY plane
sketch18 = body.newObject("Sketcher::SketchObject", "Sketch017")
sketch18.AttachmentSupport = (doc.getObject("XY_Plane"), [""])
sketch18.MapMode = "FlatFace"
sketch18.AttachmentOffset = App.Placement(V(0, 0, -25.784582), App.Rotation())
sketch18.addGeometry(Part.LineSegment(V(1, 19, 0), V(1, 7, 0)), False)
sketch18.addGeometry(Part.LineSegment(V(1, 7, 0), V(11, 7, 0)), False)
sketch18.addGeometry(Part.LineSegment(V(11, 7, 0), V(11, 19, 0)), False)
sketch18.addGeometry(Part.LineSegment(V(11, 19, 0), V(1, 19, 0)), False)
sketch18.addConstraint(Sketcher.Constraint("Coincident", 0, 2, 1, 1))
sketch18.addConstraint(Sketcher.Constraint("Coincident", 1, 2, 2, 1))
sketch18.addConstraint(Sketcher.Constraint("Coincident", 2, 2, 3, 1))
sketch18.addConstraint(Sketcher.Constraint("Coincident", 3, 2, 0, 1))
sketch18.addConstraint(Sketcher.Constraint("Vertical", 0))
sketch18.addConstraint(Sketcher.Constraint("Horizontal", 1))
sketch18.addConstraint(Sketcher.Constraint("Vertical", 2))
sketch18.addConstraint(Sketcher.Constraint("Horizontal", 3))
sketch18.addConstraint(Sketcher.Constraint("DistanceY", 0, 2, 0, 1, 12.0))
sketch18.addConstraint(Sketcher.Constraint("DistanceY", -1, 1, 0, 2, 7.0))
sketch18.addConstraint(Sketcher.Constraint("DistanceX", 1, 1, 1, 2, 9.640159))
sketch18.addConstraint(Sketcher.Constraint("DistanceX", -1, 1, 0, 2, 1.297736))
pocket12 = body.newObject("PartDesign::Pocket", "Pocket011")
pocket12.Profile = sketch18
pocket12.Length = 4.5
pocket12.Midplane = True
doc.recompute()

chamfer = body.newObject("PartDesign::Chamfer", "Chamfer")
chamfer.Base = (pocket12, edges_at(pocket12, [(53.738, 6, -12.285)]))
chamfer.Size = 1.5
doc.recompute()

chamfer2 = body.newObject("PartDesign::Chamfer", "Chamfer001")
chamfer2.Base = (chamfer, edges_at(chamfer, [(45.388, 7, -44.785), (-27.612, 7, -59.785), (-27.612, 7, 8.215)]))
chamfer2.Size = 6

# Sketch on XY plane
sketch19 = body.newObject("Sketcher::SketchObject", "Sketch018")
sketch19.AttachmentSupport = (doc.getObject("XY_Plane"), [""])
sketch19.MapMode = "FlatFace"
sketch19.AttachmentOffset = App.Placement(V(0, 0, -44.784582), App.Rotation())
sketch19.addGeometry(Part.LineSegment(V(1.49, 16, 0), V(1.49, 19, 0)), False)
sketch19.addGeometry(Part.LineSegment(V(1.49, 19, 0), V(4.89, 19, 0)), False)
sketch19.addGeometry(Part.LineSegment(V(4.89, 19, 0), V(1.89, 16, 0)), False)
sketch19.addGeometry(Part.LineSegment(V(1.89, 16, 0), V(1.49, 16, 0)), False)
sketch19.addConstraint(Sketcher.Constraint("Coincident", 0, 2, 1, 1))
sketch19.addConstraint(Sketcher.Constraint("Coincident", 1, 2, 2, 1))
sketch19.addConstraint(Sketcher.Constraint("Coincident", 2, 2, 3, 1))
sketch19.addConstraint(Sketcher.Constraint("Coincident", 3, 2, 0, 1))
sketch19.addConstraint(Sketcher.Constraint("Vertical", 0))
sketch19.addConstraint(Sketcher.Constraint("Horizontal", 1))
sketch19.addConstraint(Sketcher.Constraint("Horizontal", 3))
sketch19.addConstraint(Sketcher.Constraint("DistanceY", 0, 1, 0, 2, 3.0))
sketch19.addConstraint(Sketcher.Constraint("Angle", 2, Q("-135 deg")))
sketch19.addConstraint(Sketcher.Constraint("DistanceX", 1, 1, 1, 2, 3.4))
sketch19.addConstraint(Sketcher.Constraint("DistanceY", -1, 1, 0, 2, 19.0))
sketch19.addConstraint(Sketcher.Constraint("DistanceX", -1, 1, 0, 2, 1.487895))
pocket13 = body.newObject("PartDesign::Pocket", "Pocket012")
pocket13.Profile = sketch19
pocket13.Length = 56
pocket13.Reversed = True

doc.recompute()
